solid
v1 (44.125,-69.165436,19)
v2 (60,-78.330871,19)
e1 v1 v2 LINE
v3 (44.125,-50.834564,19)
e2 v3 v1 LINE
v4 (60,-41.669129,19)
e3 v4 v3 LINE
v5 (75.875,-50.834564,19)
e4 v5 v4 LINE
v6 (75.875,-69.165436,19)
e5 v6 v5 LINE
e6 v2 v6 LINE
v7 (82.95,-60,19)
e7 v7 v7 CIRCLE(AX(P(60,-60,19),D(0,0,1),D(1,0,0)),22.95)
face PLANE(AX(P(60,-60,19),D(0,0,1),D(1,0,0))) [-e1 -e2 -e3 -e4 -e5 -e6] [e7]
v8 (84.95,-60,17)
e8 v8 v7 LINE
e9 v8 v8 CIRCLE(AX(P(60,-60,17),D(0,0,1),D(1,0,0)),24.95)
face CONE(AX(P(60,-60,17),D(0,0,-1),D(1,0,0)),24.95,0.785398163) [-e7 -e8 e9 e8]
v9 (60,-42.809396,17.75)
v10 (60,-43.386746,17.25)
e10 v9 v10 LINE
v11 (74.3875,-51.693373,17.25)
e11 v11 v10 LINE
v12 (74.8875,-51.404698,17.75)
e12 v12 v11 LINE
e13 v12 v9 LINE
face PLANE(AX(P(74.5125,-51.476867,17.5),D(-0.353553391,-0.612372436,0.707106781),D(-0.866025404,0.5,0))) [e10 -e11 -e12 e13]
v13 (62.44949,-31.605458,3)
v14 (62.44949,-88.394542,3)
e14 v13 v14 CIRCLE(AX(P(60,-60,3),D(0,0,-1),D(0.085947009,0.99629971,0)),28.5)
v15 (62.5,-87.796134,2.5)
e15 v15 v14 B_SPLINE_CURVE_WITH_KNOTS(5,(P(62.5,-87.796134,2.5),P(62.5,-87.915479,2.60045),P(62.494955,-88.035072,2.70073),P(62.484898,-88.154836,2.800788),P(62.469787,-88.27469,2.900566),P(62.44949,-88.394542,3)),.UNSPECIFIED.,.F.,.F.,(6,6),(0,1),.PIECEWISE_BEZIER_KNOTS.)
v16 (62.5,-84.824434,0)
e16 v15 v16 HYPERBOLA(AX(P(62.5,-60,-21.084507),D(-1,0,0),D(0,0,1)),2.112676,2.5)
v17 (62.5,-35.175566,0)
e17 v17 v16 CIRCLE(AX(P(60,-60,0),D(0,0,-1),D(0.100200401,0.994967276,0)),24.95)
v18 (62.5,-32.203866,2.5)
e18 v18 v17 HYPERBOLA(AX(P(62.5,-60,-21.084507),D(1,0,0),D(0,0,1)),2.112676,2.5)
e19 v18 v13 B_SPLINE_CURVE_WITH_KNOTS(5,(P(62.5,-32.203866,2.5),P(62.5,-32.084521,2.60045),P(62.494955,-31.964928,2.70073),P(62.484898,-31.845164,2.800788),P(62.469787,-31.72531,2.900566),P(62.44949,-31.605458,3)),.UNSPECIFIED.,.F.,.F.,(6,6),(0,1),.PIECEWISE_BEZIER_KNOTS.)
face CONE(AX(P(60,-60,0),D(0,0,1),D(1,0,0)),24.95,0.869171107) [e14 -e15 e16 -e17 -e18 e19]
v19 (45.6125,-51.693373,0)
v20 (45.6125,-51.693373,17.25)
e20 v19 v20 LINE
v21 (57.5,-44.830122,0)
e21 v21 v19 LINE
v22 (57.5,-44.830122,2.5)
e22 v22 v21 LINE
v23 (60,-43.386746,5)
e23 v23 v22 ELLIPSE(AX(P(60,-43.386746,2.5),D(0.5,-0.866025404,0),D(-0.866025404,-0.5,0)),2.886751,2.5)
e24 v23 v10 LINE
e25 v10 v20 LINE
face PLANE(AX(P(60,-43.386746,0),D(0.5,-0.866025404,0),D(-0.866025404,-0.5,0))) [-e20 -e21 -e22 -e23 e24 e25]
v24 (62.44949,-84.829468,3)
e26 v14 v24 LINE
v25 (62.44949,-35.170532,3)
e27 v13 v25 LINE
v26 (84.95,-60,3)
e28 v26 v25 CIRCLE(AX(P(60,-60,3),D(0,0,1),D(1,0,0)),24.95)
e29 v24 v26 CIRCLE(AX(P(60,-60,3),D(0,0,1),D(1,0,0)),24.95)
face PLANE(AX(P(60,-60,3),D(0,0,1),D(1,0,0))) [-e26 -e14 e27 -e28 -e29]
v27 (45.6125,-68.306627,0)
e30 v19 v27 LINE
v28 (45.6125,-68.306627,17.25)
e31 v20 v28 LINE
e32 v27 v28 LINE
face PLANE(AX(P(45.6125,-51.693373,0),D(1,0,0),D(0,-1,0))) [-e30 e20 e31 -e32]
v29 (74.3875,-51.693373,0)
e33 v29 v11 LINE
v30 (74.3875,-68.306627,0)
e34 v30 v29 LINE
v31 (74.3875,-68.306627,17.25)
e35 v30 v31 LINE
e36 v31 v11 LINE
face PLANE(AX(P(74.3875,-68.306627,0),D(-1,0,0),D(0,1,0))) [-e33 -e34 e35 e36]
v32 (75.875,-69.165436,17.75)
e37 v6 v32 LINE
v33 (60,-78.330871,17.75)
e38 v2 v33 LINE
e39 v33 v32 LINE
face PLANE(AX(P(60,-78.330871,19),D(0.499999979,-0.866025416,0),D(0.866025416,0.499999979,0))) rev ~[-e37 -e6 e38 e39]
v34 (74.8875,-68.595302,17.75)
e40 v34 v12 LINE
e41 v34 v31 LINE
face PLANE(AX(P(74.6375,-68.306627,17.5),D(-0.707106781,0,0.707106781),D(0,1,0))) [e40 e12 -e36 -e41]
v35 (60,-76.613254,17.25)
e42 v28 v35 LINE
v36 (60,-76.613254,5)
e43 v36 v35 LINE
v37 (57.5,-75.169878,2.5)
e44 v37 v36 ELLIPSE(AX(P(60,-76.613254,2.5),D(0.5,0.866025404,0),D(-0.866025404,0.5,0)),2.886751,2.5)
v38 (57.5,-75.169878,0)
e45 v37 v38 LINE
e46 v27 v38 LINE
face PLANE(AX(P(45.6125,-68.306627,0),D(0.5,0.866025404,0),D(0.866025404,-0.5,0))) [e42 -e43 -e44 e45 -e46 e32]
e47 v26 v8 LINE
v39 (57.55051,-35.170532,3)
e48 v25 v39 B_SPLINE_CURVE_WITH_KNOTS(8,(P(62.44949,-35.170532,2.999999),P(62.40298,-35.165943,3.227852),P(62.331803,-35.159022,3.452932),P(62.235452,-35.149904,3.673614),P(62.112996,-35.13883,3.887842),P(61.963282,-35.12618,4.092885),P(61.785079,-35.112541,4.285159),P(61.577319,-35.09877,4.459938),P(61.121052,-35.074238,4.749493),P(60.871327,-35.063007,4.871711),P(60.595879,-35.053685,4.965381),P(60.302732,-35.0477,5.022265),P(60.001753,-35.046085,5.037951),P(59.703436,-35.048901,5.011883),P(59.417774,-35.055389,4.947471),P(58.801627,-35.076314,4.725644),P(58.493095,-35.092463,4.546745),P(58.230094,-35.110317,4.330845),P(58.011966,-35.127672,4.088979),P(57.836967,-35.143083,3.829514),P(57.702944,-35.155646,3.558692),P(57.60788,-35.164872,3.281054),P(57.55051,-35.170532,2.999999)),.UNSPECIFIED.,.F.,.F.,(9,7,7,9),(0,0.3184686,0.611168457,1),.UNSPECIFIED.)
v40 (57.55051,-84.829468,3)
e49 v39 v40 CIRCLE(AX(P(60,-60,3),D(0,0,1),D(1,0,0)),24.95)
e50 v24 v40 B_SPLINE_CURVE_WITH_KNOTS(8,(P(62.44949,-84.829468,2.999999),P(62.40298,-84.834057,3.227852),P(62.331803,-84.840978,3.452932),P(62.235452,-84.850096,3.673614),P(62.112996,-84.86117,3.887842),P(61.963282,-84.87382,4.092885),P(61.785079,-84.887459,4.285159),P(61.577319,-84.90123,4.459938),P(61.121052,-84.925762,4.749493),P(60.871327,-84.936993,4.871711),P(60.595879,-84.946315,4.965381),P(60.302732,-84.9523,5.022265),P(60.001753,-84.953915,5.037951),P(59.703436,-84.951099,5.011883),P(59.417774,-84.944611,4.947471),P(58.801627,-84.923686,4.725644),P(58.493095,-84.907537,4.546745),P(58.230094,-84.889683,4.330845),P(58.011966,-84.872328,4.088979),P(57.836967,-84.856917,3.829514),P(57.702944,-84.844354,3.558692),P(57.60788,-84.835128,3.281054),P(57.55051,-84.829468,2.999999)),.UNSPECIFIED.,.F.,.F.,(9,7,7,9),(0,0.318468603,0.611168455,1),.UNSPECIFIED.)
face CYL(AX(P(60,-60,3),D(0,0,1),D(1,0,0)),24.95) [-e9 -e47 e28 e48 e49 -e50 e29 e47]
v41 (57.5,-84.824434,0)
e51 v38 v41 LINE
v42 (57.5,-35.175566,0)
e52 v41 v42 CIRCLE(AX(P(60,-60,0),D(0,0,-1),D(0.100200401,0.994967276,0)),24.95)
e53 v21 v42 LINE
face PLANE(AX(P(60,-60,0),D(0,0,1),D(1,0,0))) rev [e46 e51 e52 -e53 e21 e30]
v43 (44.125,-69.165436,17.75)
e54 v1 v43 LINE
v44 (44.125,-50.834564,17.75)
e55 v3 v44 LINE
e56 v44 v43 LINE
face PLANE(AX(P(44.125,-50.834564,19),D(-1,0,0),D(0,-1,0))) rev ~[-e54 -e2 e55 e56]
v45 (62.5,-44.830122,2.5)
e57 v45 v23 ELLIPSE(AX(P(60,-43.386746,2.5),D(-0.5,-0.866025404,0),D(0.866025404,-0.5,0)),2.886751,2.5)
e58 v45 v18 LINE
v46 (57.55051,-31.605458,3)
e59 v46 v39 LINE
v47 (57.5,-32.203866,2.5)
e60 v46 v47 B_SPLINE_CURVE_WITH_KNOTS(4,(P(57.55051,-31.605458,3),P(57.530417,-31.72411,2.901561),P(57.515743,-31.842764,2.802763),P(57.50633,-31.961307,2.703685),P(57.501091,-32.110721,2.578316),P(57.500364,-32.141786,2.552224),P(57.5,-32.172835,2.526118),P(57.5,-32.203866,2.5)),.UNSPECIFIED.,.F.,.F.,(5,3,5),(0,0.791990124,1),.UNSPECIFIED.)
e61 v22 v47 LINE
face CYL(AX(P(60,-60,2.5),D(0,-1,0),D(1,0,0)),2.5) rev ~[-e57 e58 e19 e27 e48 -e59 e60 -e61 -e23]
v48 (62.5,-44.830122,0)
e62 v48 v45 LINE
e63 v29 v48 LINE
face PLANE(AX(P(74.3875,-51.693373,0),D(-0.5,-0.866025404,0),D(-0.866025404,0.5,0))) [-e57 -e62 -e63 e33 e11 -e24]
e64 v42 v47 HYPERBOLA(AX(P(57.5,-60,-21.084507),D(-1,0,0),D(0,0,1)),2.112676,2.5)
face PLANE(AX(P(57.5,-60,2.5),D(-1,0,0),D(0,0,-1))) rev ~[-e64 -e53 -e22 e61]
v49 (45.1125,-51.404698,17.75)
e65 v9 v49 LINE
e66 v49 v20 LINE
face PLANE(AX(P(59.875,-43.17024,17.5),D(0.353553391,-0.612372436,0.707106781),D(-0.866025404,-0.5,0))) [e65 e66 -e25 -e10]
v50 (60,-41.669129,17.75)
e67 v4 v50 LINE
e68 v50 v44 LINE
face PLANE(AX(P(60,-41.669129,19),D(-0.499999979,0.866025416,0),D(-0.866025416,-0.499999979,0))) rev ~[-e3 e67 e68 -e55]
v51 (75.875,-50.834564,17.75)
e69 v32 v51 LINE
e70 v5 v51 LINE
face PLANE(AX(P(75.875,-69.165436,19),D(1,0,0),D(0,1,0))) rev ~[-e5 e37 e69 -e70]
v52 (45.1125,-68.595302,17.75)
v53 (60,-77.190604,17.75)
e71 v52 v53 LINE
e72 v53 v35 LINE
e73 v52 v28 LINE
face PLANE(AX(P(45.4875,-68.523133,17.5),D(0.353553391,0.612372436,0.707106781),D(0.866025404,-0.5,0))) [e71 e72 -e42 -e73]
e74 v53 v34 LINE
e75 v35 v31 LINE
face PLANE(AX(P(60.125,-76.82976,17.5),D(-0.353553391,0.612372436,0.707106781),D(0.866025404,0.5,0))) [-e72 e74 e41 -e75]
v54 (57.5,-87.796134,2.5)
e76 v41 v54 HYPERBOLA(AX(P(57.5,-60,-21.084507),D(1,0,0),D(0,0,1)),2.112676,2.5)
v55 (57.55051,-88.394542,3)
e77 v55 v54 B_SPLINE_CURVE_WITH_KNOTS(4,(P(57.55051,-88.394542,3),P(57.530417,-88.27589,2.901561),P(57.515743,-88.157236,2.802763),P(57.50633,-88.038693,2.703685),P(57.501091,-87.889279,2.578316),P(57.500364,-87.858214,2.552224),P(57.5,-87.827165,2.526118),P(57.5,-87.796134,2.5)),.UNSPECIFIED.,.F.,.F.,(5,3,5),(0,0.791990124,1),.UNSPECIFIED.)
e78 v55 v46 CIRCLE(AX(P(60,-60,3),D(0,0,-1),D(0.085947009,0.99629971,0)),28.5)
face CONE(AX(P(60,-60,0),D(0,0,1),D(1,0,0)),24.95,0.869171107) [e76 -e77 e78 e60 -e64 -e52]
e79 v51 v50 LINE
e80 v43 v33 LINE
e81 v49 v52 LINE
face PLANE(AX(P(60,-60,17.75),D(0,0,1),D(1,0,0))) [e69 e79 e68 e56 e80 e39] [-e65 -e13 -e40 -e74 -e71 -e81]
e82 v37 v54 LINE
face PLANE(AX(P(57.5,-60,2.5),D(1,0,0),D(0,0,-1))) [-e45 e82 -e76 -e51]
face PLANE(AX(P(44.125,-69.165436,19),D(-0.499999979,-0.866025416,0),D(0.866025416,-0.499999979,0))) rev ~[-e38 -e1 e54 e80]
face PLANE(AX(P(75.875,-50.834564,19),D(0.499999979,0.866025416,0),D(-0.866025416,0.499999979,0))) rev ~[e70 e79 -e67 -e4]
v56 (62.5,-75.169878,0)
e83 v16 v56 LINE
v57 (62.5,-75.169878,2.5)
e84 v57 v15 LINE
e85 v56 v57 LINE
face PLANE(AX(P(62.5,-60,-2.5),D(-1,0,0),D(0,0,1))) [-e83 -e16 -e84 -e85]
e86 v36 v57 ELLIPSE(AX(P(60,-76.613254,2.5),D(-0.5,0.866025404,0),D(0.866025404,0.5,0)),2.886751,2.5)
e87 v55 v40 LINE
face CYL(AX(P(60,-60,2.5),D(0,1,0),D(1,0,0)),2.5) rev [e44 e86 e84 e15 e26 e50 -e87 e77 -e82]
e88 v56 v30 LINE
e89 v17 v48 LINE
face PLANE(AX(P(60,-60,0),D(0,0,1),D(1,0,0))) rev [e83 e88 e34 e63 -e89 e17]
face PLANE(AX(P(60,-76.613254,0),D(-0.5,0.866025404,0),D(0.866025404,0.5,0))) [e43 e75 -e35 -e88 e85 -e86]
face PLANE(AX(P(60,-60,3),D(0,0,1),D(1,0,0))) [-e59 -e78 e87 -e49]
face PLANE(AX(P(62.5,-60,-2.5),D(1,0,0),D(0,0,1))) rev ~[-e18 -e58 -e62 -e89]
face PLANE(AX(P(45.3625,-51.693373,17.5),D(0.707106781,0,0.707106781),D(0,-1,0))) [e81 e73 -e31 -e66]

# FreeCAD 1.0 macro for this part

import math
import FreeCAD as App
import Part
import Sketcher

V = App.Vector
Q = App.Units.Quantity


def edges_at(feature, points):
    """Names of the edges that pass closest to the given points."""
    edges = feature.Shape.Edges
    near = lambda p: min(range(len(edges)), key=lambda i: edges[i].distToShape(Part.Vertex(*p))[0])
    return sorted({f"Edge{near(p) + 1}" for p in points})

doc = App.newDocument("Part")
body = doc.addObject("PartDesign::Body", "Body")

sketch1 = body.newObject("Sketcher::SketchObject", "Sketch")
sketch1.AttachmentSupport = (doc.getObject("XZ_Plane"), [""])
sketch1.MapMode = "FlatFace"
sketch1.addGeometry([
    Part.LineSegment(V(0, 0, 0), V(24.9, 0, 0)),
    Part.LineSegment(V(24.9, 0, 0), V(28.5, 3, 0)),
    Part.LineSegment(V(28.5, 3, 0), V(24.9, 3, 0)),
    Part.LineSegment(V(24.9, 3, 0), V(24.9, 19, 0)),
    Part.LineSegment(V(24.9, 19, 0), V(0, 19, 0)),
    Part.LineSegment(V(0, 19, 0), V(0, 0, 0)),
], False)
sketch1.addConstraint([
    Sketcher.Constraint("Coincident", 0, 2, 1, 1),
    Sketcher.Constraint("Coincident", 1, 2, 2, 1),
    Sketcher.Constraint("Coincident", 2, 2, 3, 1),
    Sketcher.Constraint("Coincident", 3, 2, 4, 1),
    Sketcher.Constraint("Coincident", 4, 2, 5, 1),
    Sketcher.Constraint("Coincident", 5, 2, 0, 1),
    Sketcher.Constraint("Horizontal", 0),
    Sketcher.Constraint("Horizontal", 2),
    Sketcher.Constraint("Vertical", 3),
    Sketcher.Constraint("Horizontal", 4),
    Sketcher.Constraint("Vertical", 5),
    Sketcher.Constraint("Coincident", 5, 2, -1, 1),
    Sketcher.Constraint("Vertical", 0, 2, 2, 2),
    Sketcher.Constraint("DistanceY", 3, 1, 3, 2, 16.0),
    Sketcher.Constraint("DistanceY", 5, 2, 5, 1, 19.0),
    Sketcher.Constraint("DistanceX", 0, 1, 0, 2, 24.95),
    Sketcher.Constraint("DistanceX", 2, 2, 2, 1, 3.55),
])
revolution = body.newObject("PartDesign::Revolution", "Revolution")
revolution.Profile = sketch1
revolution.ReferenceAxis = (sketch1, ["V_Axis"])
revolution.Angle = 360

sketch2 = body.newObject("Sketcher::SketchObject", "Sketch001")
sketch2.AttachmentSupport = (doc.getObject("XY_Plane"), [""])
sketch2.MapMode = "FlatFace"
sketch2.addGeometry([
    Part.LineSegment(V(14, 8, 0), V(0, 17, 0)),
    Part.LineSegment(V(0, 17, 0), V(-14, 8, 0)),
    Part.LineSegment(V(-14, 8, 0), V(-14, -8, 0)),
    Part.LineSegment(V(-14, -8, 0), V(0, -17, 0)),
    Part.LineSegment(V(0, -17, 0), V(14, -8, 0)),
    Part.LineSegment(V(14, -8, 0), V(14, 8, 0)),
], False)
sketch2.addConstraint([
    Sketcher.Constraint("Coincident", 0, 2, 1, 1),
    Sketcher.Constraint("Coincident", 1, 2, 2, 1),
    Sketcher.Constraint("Coincident", 2, 2, 3, 1),
    Sketcher.Constraint("Coincident", 3, 2, 4, 1),
    Sketcher.Constraint("Coincident", 4, 2, 5, 1),
    Sketcher.Constraint("Coincident", 5, 2, 0, 1),
    Sketcher.Constraint("Vertical", 2),
    Sketcher.Constraint("Vertical", 5),
    Sketcher.Constraint("Symmetric", 0, 2, 3, 2, -1, 1),
    Sketcher.Constraint("Symmetric", 1, 2, 4, 2, -1, 1),
    Sketcher.Constraint("PointOnObject", 0, 2, -2),
    Sketcher.Constraint("Parallel", 0, 3),
    Sketcher.Constraint("Horizontal", 2, 2, 4, 2),
    Sketcher.Constraint("Angle", 0, Q("150 deg")),
    Sketcher.Constraint("DistanceX", 2, 2, 4, 2, 28.775),
    Sketcher.Constraint("DistanceY", 2, 2, 2, 1, 16.613254),
])
pocket1 = body.newObject("PartDesign::Pocket", "Pocket")
pocket1.Profile = sketch2
pocket1.Type = "ThroughAll"
pocket1.Reversed = True

sketch3 = body.newObject("Sketcher::SketchObject", "Sketch002")
sketch3.AttachmentSupport = (doc.getObject("XY_Plane"), [""])
sketch3.MapMode = "FlatFace"
sketch3.AttachmentOffset = App.Placement(V(0, 0, 19), App.Rotation())
sketch3.addGeometry([
    Part.LineSegment(V(16, -9, 0), V(16, 9, 0)),
    Part.LineSegment(V(16, 9, 0), V(0, 18, 0)),
    Part.LineSegment(V(0, 18, 0), V(-16, 9, 0)),
    Part.LineSegment(V(-16, 9, 0), V(-16, -9, 0)),
    Part.LineSegment(V(-16, -9, 0), V(0, -18, 0)),
    Part.LineSegment(V(0, -18, 0), V(16, -9, 0)),
], False)
sketch3.addConstraint([
    Sketcher.Constraint("Coincident", 0, 2, 1, 1),
    Sketcher.Constraint("Coincident", 1, 2, 2, 1),
    Sketcher.Constraint("Coincident", 2, 2, 3, 1),
    Sketcher.Constraint("Coincident", 3, 2, 4, 1),
    Sketcher.Constraint("Coincident", 4, 2, 5, 1),
    Sketcher.Constraint("Coincident", 5, 2, 0, 1),
    Sketcher.Constraint("Vertical", 0),
    Sketcher.Constraint("Vertical", 3),
    Sketcher.Constraint("Symmetric", 0, 2, 3, 2, -1, 1),
    Sketcher.Constraint("Symmetric", 1, 2, 4, 2, -1, 1),
    Sketcher.Constraint("PointOnObject", 1, 2, -2),
    Sketcher.Constraint("Parallel", 2, 5),
    Sketcher.Constraint("Horizontal", 0, 2, 2, 2),
    Sketcher.Constraint("Angle", 1, Q("150.000001 deg")),
    Sketcher.Constraint("DistanceX", 2, 2, 0, 2, 31.75),
    Sketcher.Constraint("DistanceY", 0, 1, 0, 2, 18.330872),
])
pocket2 = body.newObject("PartDesign::Pocket", "Pocket001")
pocket2.Profile = sketch3
pocket2.Length = 1.25
doc.recompute()

chamfer = body.newObject("PartDesign::Chamfer", "Chamfer")
chamfer.Base = (pocket2, edges_at(pocket2, [(-24.95, 0, 19)]))
chamfer.Size = 2
doc.recompute()

chamfer2 = body.newObject("PartDesign::Chamfer", "Chamfer001")
chamfer2.Base = (chamfer, edges_at(chamfer, [
    (-14.387, 0, 17.75),
    (-7.194, 12.46, 17.75),
    (7.194, 12.46, 17.75),
    (14.387, 0, 17.75),
    (7.194, -12.46, 17.75),
    (-7.194, -12.46, 17.75),
]))
chamfer2.Size = 0.5

sketch4 = body.newObject("Sketcher::SketchObject", "Sketch003")
sketch4.AttachmentSupport = (doc.getObject("XZ_Plane"), [""])
sketch4.MapMode = "FlatFace"
sketch4.addGeometry([
    Part.ArcOfCircle(Part.Circle(V(0, 2.5, 0), V(0, 0, 1), 2.5), math.radians(0), math.radians(180)),
    Part.LineSegment(V(-2.5, 2.5, 0), V(-2.5, -2.5, 0)),
    Part.LineSegment(V(-2.5, -2.5, 0), V(2.5, -2.5, 0)),
    Part.LineSegment(V(2.5, -2.5, 0), V(2.5, 2.5, 0)),
], False)
sketch4.addConstraint([
    Sketcher.Constraint("Tangent", 0, 2, 1, 1),
    Sketcher.Constraint("Coincident", 1, 2, 2, 1),
    Sketcher.Constraint("Coincident", 2, 2, 3, 1),
    Sketcher.Constraint("Tangent", 3, 2, 0, 1),
    Sketcher.Constraint("Vertical", 1),
    Sketcher.Constraint("Horizontal", 2),
    Sketcher.Constraint("Vertical", 3),
    Sketcher.Constraint("Symmetric", 0, 2, 2, 2, -1, 1),
    Sketcher.Constraint("Equal", 2, 1),
    Sketcher.Constraint("Radius", 0, 2.5),
])
pocket3 = body.newObject("PartDesign::Pocket", "Pocket002")
pocket3.Profile = sketch4
pocket3.Type = "ThroughAll"
pocket3.Midplane = True
body2 = doc.addObject("PartDesign::Body", "Body001")
doc.recompute()

body.Placement = App.Placement(V(60, -60, 0), App.Rotation(V(0, 0, 1), 0))
boolean = body2.newObject("PartDesign::Boolean", "Boolean")
boolean.Type = "Fuse"
boolean.addObjects([body])

doc.recompute()
